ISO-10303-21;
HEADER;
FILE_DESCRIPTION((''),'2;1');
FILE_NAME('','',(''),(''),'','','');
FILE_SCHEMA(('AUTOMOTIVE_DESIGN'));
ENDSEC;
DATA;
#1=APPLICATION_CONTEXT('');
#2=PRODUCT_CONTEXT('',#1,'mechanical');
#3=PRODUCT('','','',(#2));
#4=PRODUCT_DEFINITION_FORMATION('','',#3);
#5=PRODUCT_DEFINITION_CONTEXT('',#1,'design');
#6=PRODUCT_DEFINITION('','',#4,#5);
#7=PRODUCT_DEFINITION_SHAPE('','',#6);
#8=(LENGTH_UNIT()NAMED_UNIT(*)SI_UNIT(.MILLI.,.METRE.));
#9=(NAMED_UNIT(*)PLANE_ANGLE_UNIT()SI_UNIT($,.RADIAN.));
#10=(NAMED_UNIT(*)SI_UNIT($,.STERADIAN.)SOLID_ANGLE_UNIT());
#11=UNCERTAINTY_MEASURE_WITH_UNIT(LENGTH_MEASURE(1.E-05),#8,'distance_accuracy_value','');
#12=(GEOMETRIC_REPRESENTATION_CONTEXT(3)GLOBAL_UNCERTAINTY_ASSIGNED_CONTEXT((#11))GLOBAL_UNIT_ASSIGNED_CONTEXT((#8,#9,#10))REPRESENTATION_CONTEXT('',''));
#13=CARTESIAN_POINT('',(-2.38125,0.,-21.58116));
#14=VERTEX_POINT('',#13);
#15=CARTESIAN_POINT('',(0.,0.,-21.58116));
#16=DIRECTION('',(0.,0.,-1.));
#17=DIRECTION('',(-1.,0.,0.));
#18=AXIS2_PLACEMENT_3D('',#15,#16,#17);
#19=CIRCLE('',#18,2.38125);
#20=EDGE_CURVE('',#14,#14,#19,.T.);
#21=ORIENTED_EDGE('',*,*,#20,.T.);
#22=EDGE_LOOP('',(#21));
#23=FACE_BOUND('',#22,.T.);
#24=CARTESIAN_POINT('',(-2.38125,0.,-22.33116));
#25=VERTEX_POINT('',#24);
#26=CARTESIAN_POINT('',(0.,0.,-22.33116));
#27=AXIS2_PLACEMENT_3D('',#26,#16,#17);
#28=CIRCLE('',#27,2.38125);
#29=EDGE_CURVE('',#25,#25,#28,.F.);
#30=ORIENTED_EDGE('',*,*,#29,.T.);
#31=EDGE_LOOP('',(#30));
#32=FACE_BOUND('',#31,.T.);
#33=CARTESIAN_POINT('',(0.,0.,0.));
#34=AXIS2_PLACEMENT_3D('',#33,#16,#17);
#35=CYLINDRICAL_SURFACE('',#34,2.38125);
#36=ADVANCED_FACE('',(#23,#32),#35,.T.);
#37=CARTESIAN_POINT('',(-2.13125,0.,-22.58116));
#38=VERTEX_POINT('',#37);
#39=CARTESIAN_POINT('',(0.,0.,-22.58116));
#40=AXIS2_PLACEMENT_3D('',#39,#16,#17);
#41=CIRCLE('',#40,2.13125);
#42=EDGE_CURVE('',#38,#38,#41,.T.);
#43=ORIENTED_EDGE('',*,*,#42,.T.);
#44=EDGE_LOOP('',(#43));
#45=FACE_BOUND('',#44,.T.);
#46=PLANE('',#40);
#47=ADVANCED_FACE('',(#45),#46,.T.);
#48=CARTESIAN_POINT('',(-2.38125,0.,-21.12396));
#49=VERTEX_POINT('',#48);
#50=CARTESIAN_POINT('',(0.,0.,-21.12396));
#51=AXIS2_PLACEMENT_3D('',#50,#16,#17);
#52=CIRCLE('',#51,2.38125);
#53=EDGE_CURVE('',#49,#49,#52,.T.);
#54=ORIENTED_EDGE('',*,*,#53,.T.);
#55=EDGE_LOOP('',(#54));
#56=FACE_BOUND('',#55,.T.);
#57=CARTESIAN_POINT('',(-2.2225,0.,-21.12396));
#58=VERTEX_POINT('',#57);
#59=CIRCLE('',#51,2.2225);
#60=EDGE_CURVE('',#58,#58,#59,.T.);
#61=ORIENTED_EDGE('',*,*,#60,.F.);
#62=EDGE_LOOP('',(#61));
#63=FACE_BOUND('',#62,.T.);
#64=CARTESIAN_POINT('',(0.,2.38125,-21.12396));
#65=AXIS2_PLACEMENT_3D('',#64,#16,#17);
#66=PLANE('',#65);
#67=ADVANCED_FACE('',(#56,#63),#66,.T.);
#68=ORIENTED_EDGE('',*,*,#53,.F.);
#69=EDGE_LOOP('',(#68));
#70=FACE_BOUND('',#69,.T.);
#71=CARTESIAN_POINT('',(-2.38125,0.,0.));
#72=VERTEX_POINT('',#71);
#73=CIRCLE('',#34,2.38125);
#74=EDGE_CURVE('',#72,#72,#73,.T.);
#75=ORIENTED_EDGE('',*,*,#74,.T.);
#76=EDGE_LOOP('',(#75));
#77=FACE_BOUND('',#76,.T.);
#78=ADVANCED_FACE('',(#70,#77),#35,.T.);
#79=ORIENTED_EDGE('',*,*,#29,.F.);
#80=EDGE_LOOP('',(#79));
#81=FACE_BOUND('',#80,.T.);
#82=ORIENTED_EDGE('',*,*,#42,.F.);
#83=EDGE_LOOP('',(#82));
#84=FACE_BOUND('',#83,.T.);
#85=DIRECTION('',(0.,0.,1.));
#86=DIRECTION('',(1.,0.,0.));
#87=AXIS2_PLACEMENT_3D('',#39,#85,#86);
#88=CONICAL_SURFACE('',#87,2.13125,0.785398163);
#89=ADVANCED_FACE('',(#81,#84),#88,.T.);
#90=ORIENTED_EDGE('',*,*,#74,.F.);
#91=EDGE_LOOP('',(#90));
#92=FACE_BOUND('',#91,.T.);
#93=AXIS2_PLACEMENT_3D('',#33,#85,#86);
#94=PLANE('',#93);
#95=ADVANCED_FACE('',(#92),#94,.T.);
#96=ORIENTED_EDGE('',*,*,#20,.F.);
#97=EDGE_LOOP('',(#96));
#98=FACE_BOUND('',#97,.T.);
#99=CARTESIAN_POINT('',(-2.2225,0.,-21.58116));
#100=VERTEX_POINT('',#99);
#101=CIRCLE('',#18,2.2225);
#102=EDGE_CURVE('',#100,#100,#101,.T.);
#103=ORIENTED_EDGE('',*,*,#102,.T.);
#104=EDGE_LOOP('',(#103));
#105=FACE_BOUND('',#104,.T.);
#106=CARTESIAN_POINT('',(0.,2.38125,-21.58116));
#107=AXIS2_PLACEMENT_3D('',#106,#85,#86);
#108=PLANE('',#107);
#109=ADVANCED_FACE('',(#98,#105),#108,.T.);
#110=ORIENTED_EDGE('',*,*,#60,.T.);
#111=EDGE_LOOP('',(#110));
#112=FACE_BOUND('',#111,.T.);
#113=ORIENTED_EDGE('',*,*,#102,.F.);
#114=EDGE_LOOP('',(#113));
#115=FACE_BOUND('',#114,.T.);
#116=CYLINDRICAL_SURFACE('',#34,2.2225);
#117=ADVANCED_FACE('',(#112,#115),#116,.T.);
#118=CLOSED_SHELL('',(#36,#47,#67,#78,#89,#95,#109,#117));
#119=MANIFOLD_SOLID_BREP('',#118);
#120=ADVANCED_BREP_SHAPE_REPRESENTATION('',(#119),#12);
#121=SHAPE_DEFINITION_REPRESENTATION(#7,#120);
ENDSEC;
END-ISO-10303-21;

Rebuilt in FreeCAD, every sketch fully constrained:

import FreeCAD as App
import Part
import Sketcher
Q = App.Units.Quantity


def edges_at(feature, points):
    """Names of the edges that pass closest to the given points."""
    edges = feature.Shape.Edges
    near = lambda p: min(range(len(edges)), key=lambda i: edges[i].distToShape(Part.Vertex(*p))[0])
    return sorted({f"Edge{near(p) + 1}" for p in points})

doc = App.newDocument("Part")
params = doc.addObject("Spreadsheet::Sheet", "Params")
for row, (alias, value) in enumerate([
    ("sketch1_width", "0.09375 in"),
    ("sketch1_height", "0.018 in"),
    ("revolution_angle", "360 deg"),
    ("chamfer_size", "0.25 mm"),
], start=1):
    params.set(f"A{row}", alias)
    params.set(f"B{row}", "=" + value)
    params.setAlias(f"B{row}", alias)

body = doc.addObject("PartDesign::Body", "Body")

# Sketch on YZ plane
sketch1 = body.newObject("Sketcher::SketchObject", "Sketch")
sketch1.AttachmentSupport = (doc.getObject("YZ_Plane"), [""])
sketch1.MapMode = "FlatFace"
sketch1.addGeometry([
    Part.LineSegment(App.Vector(0, 0, 0), App.Vector(0, -22.58, 0)),  # 0
    Part.LineSegment(App.Vector(0, -22.58, 0), App.Vector(2.38, -22.58, 0)),  # 1
    Part.LineSegment(App.Vector(2.38, -22.58, 0), App.Vector(2.38, -21.58, 0)),  # 2
    Part.LineSegment(App.Vector(2.38, -21.58, 0), App.Vector(2.22, -21.58, 0)),  # 3
    Part.LineSegment(App.Vector(2.22, -21.58, 0), App.Vector(2.22, -21.12, 0)),  # 4
    Part.LineSegment(App.Vector(2.22, -21.12, 0), App.Vector(2.38, -21.12, 0)),  # 5
    Part.LineSegment(App.Vector(2.38, -21.12, 0), App.Vector(2.38, 0, 0)),  # 6
    Part.LineSegment(App.Vector(2.38, 0, 0), App.Vector(0, 0, 0)),  # 7
], False)
sketch1.addConstraint([
    Sketcher.Constraint("Coincident", 0, 2, 1, 1),
    Sketcher.Constraint("Coincident", 1, 2, 2, 1),
    Sketcher.Constraint("Coincident", 2, 2, 3, 1),
    Sketcher.Constraint("Coincident", 3, 2, 4, 1),
    Sketcher.Constraint("Coincident", 4, 2, 5, 1),
    Sketcher.Constraint("Coincident", 5, 2, 6, 1),
    Sketcher.Constraint("Coincident", 6, 2, 7, 1),
    Sketcher.Constraint("Coincident", 7, 2, 0, 1),
    Sketcher.Constraint("Vertical", 0),
    Sketcher.Constraint("Horizontal", 1),
    Sketcher.Constraint("Vertical", 2),
    Sketcher.Constraint("Horizontal", 3),
    Sketcher.Constraint("Vertical", 4),
    Sketcher.Constraint("Horizontal", 5),
    Sketcher.Constraint("Vertical", 6),
    Sketcher.Constraint("Horizontal", 7),
    Sketcher.Constraint("Coincident", 7, 2, -1, 1),
    Sketcher.Constraint("Vertical", 2, 2, 5, 2),
    Sketcher.Constraint("DistanceX", 1, 1, 1, 2, Q("0.09375 in")),
    Sketcher.Constraint("DistanceY", 4, 1, 4, 2, Q("0.018 in")),
    Sketcher.Constraint("DistanceY", 2, 1, 2, 2, 1.0),
    Sketcher.Constraint("DistanceX", -1, 1, 3, 2, Q("0.0875 in")),
    Sketcher.Constraint("DistanceY", 0, 2, 0, 1, 22.58116),
])
sketch1.setExpression("Constraints[18]", "Params.sketch1_width")
sketch1.setExpression("Constraints[19]", "Params.sketch1_height")
revolution = body.newObject("PartDesign::Revolution", "Revolution")
revolution.Profile = sketch1
revolution.ReferenceAxis = (sketch1, ["V_Axis"])
revolution.setExpression("Angle", "Params.revolution_angle")
doc.recompute()

chamfer = body.newObject("PartDesign::Chamfer", "Chamfer")
chamfer.Base = (revolution, edges_at(revolution, [(0, -2.381, -22.581)]))
chamfer.setExpression("Size", "Params.chamfer_size")

doc.recompute()
